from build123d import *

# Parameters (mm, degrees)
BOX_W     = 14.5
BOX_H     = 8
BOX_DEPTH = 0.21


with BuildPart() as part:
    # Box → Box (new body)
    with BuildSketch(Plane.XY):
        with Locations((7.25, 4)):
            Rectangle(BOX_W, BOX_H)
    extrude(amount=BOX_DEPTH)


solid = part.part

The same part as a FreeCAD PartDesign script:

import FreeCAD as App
import Part
import Sketcher
from FreeCAD import Vector
Q = App.Units.Quantity

doc = App.newDocument("Part")
params = doc.addObject("Spreadsheet::Sheet", "Params")
for row, (alias, value) in enumerate([
    ("sketch1_height", "8 mm"),
    ("sketch1_width", "14.5 mm"),
    ("pad1_length", "0.21 mm"),
], start=1):
    params.set(f"A{row}", alias)
    params.set(f"B{row}", "=" + value)
    params.setAlias(f"B{row}", alias)

body = doc.addObject("PartDesign::Body", "Body")

# Sketch on XY plane
sketch1 = doc.addObject("Sketcher::SketchObject", "Sketch")
body.addObject(sketch1)
sketch1.AttachmentSupport = (doc.XY_Plane, [""])
sketch1.MapMode = "FlatFace"
sketch1.addGeometry([
    Part.LineSegment(Vector(0, 8, 0), Vector(0, 0, 0)),
    Part.LineSegment(Vector(0, 0, 0), Vector(14, 0, 0)),
    Part.LineSegment(Vector(14, 0, 0), Vector(14, 8, 0)),
    Part.LineSegment(Vector(14, 8, 0), Vector(0, 8, 0)),
], False)
sketch1.addConstraint([
    Sketcher.Constraint("Coincident", 0, 2, 1, 1),
    Sketcher.Constraint("Coincident", 1, 2, 2, 1),
    Sketcher.Constraint("Coincident", 2, 2, 3, 1),
    Sketcher.Constraint("Coincident", 3, 2, 0, 1),
    Sketcher.Constraint("Vertical", 0),
    Sketcher.Constraint("Horizontal", 1),
    Sketcher.Constraint("Vertical", 2),
    Sketcher.Constraint("Horizontal", 3),
    Sketcher.Constraint("Coincident", 0, 2, -1, 1),
    Sketcher.Constraint("DistanceY", 0, 2, 0, 1, Q("8 mm")),
    Sketcher.Constraint("DistanceX", 1, 1, 1, 2, Q("14.5 mm")),
])
sketch1.setExpression("Constraints[9]", "Params.sketch1_height")
sketch1.setExpression("Constraints[10]", "Params.sketch1_width")
pad1 = doc.addObject("PartDesign::Pad", "Pad")
body.addObject(pad1)
pad1.Profile = sketch1
pad1.setExpression("Length", "Params.pad1_length")

doc.recompute()
